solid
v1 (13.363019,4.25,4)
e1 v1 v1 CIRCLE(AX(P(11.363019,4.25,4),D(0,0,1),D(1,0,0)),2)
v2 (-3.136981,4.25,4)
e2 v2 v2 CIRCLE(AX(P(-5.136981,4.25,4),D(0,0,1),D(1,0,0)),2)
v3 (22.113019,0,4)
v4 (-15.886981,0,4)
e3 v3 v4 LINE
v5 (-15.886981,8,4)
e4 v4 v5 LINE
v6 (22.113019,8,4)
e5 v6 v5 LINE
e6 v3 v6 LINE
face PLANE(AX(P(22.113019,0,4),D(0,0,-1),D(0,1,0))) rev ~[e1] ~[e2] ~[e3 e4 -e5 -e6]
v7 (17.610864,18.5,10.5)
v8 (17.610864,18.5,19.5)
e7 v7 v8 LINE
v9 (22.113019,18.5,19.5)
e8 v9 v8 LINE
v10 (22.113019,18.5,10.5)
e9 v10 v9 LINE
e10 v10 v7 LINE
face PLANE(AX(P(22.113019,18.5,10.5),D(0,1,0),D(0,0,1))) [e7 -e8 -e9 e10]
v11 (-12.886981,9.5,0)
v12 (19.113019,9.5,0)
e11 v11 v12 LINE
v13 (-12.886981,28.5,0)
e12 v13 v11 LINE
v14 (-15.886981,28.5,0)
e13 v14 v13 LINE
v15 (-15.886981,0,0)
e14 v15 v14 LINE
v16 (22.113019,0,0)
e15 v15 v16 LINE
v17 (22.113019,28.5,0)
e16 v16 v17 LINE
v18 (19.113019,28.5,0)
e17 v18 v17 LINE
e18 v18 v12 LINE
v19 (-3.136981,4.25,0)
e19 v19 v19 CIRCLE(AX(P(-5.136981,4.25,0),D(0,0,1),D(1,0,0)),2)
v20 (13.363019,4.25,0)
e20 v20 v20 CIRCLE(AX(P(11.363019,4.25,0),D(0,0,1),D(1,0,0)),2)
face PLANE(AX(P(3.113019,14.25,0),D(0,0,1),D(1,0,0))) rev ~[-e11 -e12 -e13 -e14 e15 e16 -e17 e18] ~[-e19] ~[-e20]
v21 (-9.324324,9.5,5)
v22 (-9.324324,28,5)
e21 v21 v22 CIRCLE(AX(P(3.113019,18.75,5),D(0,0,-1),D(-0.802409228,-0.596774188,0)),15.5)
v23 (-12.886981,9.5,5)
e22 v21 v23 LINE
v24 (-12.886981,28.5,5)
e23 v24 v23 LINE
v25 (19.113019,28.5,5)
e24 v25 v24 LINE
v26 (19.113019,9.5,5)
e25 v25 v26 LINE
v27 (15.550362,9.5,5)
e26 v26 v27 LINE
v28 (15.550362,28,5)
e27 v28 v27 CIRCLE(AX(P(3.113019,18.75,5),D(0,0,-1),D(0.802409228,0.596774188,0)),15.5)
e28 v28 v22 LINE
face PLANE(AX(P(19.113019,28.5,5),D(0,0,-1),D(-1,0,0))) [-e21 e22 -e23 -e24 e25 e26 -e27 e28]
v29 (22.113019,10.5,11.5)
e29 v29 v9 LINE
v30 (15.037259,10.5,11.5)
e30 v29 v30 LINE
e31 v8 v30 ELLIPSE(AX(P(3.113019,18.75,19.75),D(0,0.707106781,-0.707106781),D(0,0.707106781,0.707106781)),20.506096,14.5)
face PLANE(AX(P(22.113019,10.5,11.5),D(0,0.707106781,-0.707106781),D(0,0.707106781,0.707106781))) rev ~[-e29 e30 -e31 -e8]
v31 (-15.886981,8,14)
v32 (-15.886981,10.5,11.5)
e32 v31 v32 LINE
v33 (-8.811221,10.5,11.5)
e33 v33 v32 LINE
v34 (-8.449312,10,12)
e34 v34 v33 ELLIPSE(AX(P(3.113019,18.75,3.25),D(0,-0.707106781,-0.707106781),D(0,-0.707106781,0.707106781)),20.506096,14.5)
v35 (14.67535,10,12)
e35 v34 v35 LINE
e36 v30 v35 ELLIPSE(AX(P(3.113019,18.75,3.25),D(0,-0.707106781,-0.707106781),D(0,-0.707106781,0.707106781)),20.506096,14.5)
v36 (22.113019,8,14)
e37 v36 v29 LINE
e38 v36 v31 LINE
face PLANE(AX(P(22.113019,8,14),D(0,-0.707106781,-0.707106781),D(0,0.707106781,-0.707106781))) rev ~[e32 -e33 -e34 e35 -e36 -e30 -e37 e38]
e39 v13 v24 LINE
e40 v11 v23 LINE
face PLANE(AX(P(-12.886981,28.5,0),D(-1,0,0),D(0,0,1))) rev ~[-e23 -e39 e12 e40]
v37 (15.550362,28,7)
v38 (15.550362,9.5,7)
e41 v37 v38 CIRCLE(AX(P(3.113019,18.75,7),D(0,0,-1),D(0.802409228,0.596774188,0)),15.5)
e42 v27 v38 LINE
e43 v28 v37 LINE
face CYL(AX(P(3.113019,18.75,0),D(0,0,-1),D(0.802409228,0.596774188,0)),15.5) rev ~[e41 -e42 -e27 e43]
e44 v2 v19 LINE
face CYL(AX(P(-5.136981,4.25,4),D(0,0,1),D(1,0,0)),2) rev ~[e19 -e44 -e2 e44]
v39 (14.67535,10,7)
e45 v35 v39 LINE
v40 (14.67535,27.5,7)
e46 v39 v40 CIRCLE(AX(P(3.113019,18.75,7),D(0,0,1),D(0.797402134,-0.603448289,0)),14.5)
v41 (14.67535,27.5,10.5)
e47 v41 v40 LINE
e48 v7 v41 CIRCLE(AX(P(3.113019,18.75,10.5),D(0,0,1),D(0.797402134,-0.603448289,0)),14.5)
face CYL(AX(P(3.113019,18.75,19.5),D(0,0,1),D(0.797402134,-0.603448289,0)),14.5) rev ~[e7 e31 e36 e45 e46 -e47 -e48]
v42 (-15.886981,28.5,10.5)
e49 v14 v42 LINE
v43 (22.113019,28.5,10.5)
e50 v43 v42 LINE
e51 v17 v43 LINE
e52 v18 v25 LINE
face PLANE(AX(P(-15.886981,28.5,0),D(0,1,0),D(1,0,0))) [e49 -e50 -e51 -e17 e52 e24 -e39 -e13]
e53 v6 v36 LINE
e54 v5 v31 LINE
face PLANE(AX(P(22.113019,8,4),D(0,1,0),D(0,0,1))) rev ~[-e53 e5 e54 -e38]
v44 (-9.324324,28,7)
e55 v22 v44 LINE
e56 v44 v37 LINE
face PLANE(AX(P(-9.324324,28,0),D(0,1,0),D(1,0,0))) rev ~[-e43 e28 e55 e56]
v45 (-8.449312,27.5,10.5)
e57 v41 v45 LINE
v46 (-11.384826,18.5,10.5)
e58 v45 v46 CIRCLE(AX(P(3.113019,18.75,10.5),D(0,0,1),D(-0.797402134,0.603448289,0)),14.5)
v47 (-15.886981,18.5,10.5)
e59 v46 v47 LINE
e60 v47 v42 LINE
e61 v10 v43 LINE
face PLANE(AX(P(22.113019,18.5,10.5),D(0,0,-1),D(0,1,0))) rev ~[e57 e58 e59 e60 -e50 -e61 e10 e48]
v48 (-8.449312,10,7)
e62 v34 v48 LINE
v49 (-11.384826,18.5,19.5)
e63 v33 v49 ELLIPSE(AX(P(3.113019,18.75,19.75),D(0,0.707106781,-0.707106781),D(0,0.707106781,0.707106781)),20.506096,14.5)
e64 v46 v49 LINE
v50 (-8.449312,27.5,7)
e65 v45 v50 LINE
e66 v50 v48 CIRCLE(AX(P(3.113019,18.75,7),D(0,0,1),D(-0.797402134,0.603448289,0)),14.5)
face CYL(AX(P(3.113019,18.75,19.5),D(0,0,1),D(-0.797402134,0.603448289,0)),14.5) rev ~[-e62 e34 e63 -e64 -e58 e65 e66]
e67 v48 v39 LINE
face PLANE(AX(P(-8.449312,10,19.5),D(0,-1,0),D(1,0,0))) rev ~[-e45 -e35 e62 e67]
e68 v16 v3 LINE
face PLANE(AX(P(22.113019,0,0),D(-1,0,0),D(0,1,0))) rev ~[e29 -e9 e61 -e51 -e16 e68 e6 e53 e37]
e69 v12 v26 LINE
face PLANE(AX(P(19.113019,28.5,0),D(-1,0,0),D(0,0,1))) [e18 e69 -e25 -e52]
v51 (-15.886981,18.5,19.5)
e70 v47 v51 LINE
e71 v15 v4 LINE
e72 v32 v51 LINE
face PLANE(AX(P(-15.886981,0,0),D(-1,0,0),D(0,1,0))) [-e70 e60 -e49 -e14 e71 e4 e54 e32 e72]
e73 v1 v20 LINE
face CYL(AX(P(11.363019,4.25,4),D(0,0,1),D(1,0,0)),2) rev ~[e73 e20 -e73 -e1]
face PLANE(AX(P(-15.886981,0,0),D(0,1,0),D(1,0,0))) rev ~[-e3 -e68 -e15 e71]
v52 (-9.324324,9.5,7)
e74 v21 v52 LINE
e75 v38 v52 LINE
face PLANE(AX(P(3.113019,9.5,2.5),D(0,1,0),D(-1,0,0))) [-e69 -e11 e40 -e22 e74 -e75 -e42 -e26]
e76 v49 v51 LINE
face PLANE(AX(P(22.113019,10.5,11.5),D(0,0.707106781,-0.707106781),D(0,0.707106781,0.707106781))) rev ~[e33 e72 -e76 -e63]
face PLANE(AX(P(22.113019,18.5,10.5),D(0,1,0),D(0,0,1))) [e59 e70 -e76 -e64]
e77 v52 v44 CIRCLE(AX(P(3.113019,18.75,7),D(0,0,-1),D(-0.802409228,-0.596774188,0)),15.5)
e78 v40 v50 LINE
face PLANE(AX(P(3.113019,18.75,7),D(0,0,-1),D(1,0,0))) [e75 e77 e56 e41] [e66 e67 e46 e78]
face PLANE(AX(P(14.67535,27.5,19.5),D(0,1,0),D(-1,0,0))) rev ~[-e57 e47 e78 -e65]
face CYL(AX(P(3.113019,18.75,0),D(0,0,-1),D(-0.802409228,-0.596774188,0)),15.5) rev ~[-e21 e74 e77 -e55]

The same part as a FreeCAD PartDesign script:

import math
import FreeCAD as App
import Part
import Sketcher
from FreeCAD import Vector
Q = App.Units.Quantity


def add_polygon(sketch, points):
    """Adds a closed chain of lines whose ends are joined by coincident constraints."""
    first, n = sketch.GeometryCount, len(points)
    for a, b in zip(points, points[1:] + points[:1]):
        sketch.addGeometry(Part.LineSegment(App.Vector(*a, 0), App.Vector(*b, 0)), False)
    for i in range(n):
        sketch.addConstraint(Sketcher.Constraint("Coincident", first + i, 2, first + (i + 1) % n, 1))

doc = App.newDocument("Part")
params = doc.addObject("Spreadsheet::Sheet", "Params")
for row, (alias, value) in enumerate([
    ("sketch1_width", "38 mm"),
    ("sketch1_height", "28.5 mm"),
    ("pad1_length", "19.5 mm"),
    ("sketch2_width", "8 mm"),
    ("sketch2_height", "15.5 mm"),
    ("pocket1_length", "38 mm"),
    ("sketch3_radius", "14.5 mm"),
    ("pocket2_length", "19.5 mm"),
    ("sketch4_width", "10 mm"),
    ("sketch4_height", "9 mm"),
    ("pocket3_length", "38 mm"),
    ("sketch5_width", "10.5 mm"),
    ("sketch5_height", "5.5 mm"),
    ("pocket4_length", "38 mm"),
    ("sketch6_radius", "15.5 mm"),
    ("pocket5_length", "7 mm"),
    ("sketch7_width", "32 mm"),
    ("sketch7_height", "5 mm"),
    ("pocket6_length", "19 mm"),
    ("sketch8_diameter", "4 mm"),
    ("pocket7_length", "4 mm"),
], start=1):
    params.set(f"A{row}", alias)
    params.set(f"B{row}", "=" + value)
    params.setAlias(f"B{row}", alias)

body = doc.addObject("PartDesign::Body", "Body")

sketch1 = doc.addObject("Sketcher::SketchObject", "Sketch")
body.addObject(sketch1)
sketch1.AttachmentSupport = (doc.XY_Plane, [""])
sketch1.MapMode = "FlatFace"
add_polygon(sketch1, [(-15.886981, 28.5), (-15.886981, 0), (22.113019, 0), (22.113019, 28.5)])
sketch1.addConstraint(Sketcher.Constraint("Vertical", 0))
sketch1.addConstraint(Sketcher.Constraint("Horizontal", 1))
sketch1.addConstraint(Sketcher.Constraint("Vertical", 2))
sketch1.addConstraint(Sketcher.Constraint("Horizontal", 3))
sketch1.addConstraint(Sketcher.Constraint("PointOnObject", 0, 2, -1))
sketch1.addConstraint(Sketcher.Constraint("DistanceX", 1, 1, 1, 2, Q("38 mm")))
sketch1.addConstraint(Sketcher.Constraint("DistanceY", 0, 2, 0, 1, Q("28.5 mm")))
sketch1.addConstraint(Sketcher.Constraint("DistanceX", 0, 2, -1, 1, Q("15.886981 mm")))
sketch1.setExpression("Constraints[9]", "Params.sketch1_width")
sketch1.setExpression("Constraints[10]", "Params.sketch1_height")
pad1 = doc.addObject("PartDesign::Pad", "Pad")
body.addObject(pad1)
pad1.Profile = sketch1
pad1.setExpression("Length", "Params.pad1_length")

sketch2 = doc.addObject("Sketcher::SketchObject", "Sketch001")
body.addObject(sketch2)
sketch2.AttachmentSupport = (doc.YZ_Plane, [""])
sketch2.MapMode = "FlatFace"
sketch2.AttachmentOffset = App.Placement(Vector(0, 0, 22.113019), App.Rotation())
add_polygon(sketch2, [(0, 19.5), (0, 4), (8, 4), (8, 19.5)])
sketch2.addConstraint(Sketcher.Constraint("Vertical", 0))
sketch2.addConstraint(Sketcher.Constraint("Horizontal", 1))
sketch2.addConstraint(Sketcher.Constraint("Vertical", 2))
sketch2.addConstraint(Sketcher.Constraint("Horizontal", 3))
sketch2.addConstraint(Sketcher.Constraint("PointOnObject", 0, 2, -2))
sketch2.addConstraint(Sketcher.Constraint("DistanceX", 1, 1, 1, 2, Q("8 mm")))
sketch2.addConstraint(Sketcher.Constraint("DistanceY", 0, 2, 0, 1, Q("15.5 mm")))
sketch2.addConstraint(Sketcher.Constraint("DistanceY", -1, 1, 0, 2, Q("4 mm")))
sketch2.setExpression("Constraints[9]", "Params.sketch2_width")
sketch2.setExpression("Constraints[10]", "Params.sketch2_height")
pocket1 = doc.addObject("PartDesign::Pocket", "Pocket")
body.addObject(pocket1)
pocket1.Profile = sketch2
pocket1.setExpression("Length", "Params.pocket1_length")

sketch3 = doc.addObject("Sketcher::SketchObject", "Sketch002")
body.addObject(sketch3)
sketch3.AttachmentSupport = (doc.XY_Plane, [""])
sketch3.MapMode = "FlatFace"
sketch3.AttachmentOffset = App.Placement(Vector(0, 0, 19.5), App.Rotation())
sketch3.addGeometry(Part.ArcOfCircle(Part.Circle(Vector(3.113019, 18.75, 0), Vector(0, 0, 1), 14.5), math.radians(142.882736), math.radians(217.117264)), False)
sketch3.addGeometry(Part.LineSegment(Vector(-8.449312, 10, 0), Vector(14.67535, 10, 0)), False)
sketch3.addGeometry(Part.ArcOfCircle(Part.Circle(Vector(3.113019, 18.75, 0), Vector(0, 0, 1), 14.5), math.radians(-37.117264), math.radians(37.117264)), False)
sketch3.addGeometry(Part.LineSegment(Vector(14.67535, 27.5, 0), Vector(-8.449312, 27.5, 0)), False)
sketch3.addConstraint(Sketcher.Constraint("Coincident", 0, 2, 1, 1))
sketch3.addConstraint(Sketcher.Constraint("Coincident", 1, 2, 2, 1))
sketch3.addConstraint(Sketcher.Constraint("Coincident", 2, 2, 3, 1))
sketch3.addConstraint(Sketcher.Constraint("Coincident", 3, 2, 0, 1))
sketch3.addConstraint(Sketcher.Constraint("Horizontal", 1))
sketch3.addConstraint(Sketcher.Constraint("Horizontal", 3))
sketch3.addConstraint(Sketcher.Constraint("Coincident", 2, 3, 0, 3))
sketch3.addConstraint(Sketcher.Constraint("Equal", 0, 2))
sketch3.addConstraint(Sketcher.Constraint("Vertical", 1, 2, 2, 2))
sketch3.addConstraint(Sketcher.Constraint("Radius", 0, Q("14.5 mm")))
sketch3.addConstraint(Sketcher.Constraint("DistanceY", -1, 1, 0, 2, Q("10 mm")))
sketch3.addConstraint(Sketcher.Constraint("DistanceY", -1, 1, 2, 2, Q("27.5 mm")))
sketch3.addConstraint(Sketcher.Constraint("DistanceX", -1, 1, 0, 3, Q("3.113019 mm")))
sketch3.setExpression("Constraints[9]", "Params.sketch3_radius")
pocket2 = doc.addObject("PartDesign::Pocket", "Pocket001")
body.addObject(pocket2)
pocket2.Profile = sketch3
pocket2.setExpression("Length", "Params.pocket2_length")

sketch4 = doc.addObject("Sketcher::SketchObject", "Sketch003")
body.addObject(sketch4)
sketch4.AttachmentSupport = (doc.YZ_Plane, [""])
sketch4.MapMode = "FlatFace"
sketch4.AttachmentOffset = App.Placement(Vector(0, 0, 22.113019), App.Rotation())
add_polygon(sketch4, [(18.5, 19.5), (18.5, 10.5), (28.5, 10.5), (28.5, 19.5)])
sketch4.addConstraint(Sketcher.Constraint("Vertical", 0))
sketch4.addConstraint(Sketcher.Constraint("Horizontal", 1))
sketch4.addConstraint(Sketcher.Constraint("Vertical", 2))
sketch4.addConstraint(Sketcher.Constraint("Horizontal", 3))
sketch4.addConstraint(Sketcher.Constraint("DistanceX", 1, 1, 1, 2, Q("10 mm")))
sketch4.addConstraint(Sketcher.Constraint("DistanceY", 0, 2, 0, 1, Q("9 mm")))
sketch4.addConstraint(Sketcher.Constraint("DistanceX", -1, 1, 0, 2, Q("18.5 mm")))
sketch4.addConstraint(Sketcher.Constraint("DistanceY", -1, 1, 0, 2, Q("10.5 mm")))
sketch4.setExpression("Constraints[8]", "Params.sketch4_width")
sketch4.setExpression("Constraints[9]", "Params.sketch4_height")
pocket3 = doc.addObject("PartDesign::Pocket", "Pocket002")
body.addObject(pocket3)
pocket3.Profile = sketch4
pocket3.setExpression("Length", "Params.pocket3_length")

sketch5 = doc.addObject("Sketcher::SketchObject", "Sketch004")
body.addObject(sketch5)
sketch5.AttachmentSupport = (doc.YZ_Plane, [""])
sketch5.MapMode = "FlatFace"
sketch5.AttachmentOffset = App.Placement(Vector(0, 0, 22.113019), App.Rotation())
add_polygon(sketch5, [(18.5, 19.5), (8, 19.5), (8, 14), (10.5, 11.5)])
sketch5.addConstraint(Sketcher.Constraint("Horizontal", 0))
sketch5.addConstraint(Sketcher.Constraint("Vertical", 1))
sketch5.addConstraint(Sketcher.Constraint("Perpendicular", 2, 3))
sketch5.addConstraint(Sketcher.Constraint("Angle", 2, Q("-45 deg")))
sketch5.addConstraint(Sketcher.Constraint("DistanceX", 0, 2, 0, 1, Q("10.5 mm")))
sketch5.addConstraint(Sketcher.Constraint("DistanceY", 1, 2, 1, 1, Q("5.5 mm")))
sketch5.addConstraint(Sketcher.Constraint("DistanceX", -1, 1, 0, 2, Q("8 mm")))
sketch5.addConstraint(Sketcher.Constraint("DistanceY", -1, 1, 1, 2, Q("14 mm")))
sketch5.setExpression("Constraints[8]", "Params.sketch5_width")
sketch5.setExpression("Constraints[9]", "Params.sketch5_height")
pocket4 = doc.addObject("PartDesign::Pocket", "Pocket003")
body.addObject(pocket4)
pocket4.Profile = sketch5
pocket4.setExpression("Length", "Params.pocket4_length")

sketch6 = doc.addObject("Sketcher::SketchObject", "Sketch005")
body.addObject(sketch6)
sketch6.AttachmentSupport = (doc.XY_Plane, [""])
sketch6.MapMode = "FlatFace"
sketch6.addGeometry(Part.LineSegment(Vector(15.550362, 9.5, 0), Vector(-9.324324, 9.5, 0)), False)
sketch6.addGeometry(Part.ArcOfCircle(Part.Circle(Vector(3.113019, 18.75, 0), Vector(0, 0, 1), 15.5), math.radians(143.360786), math.radians(216.639214)), False)
sketch6.addGeometry(Part.LineSegment(Vector(-9.324324, 28, 0), Vector(15.550362, 28, 0)), False)
sketch6.addGeometry(Part.ArcOfCircle(Part.Circle(Vector(3.113019, 18.75, 0), Vector(0, 0, 1), 15.5), math.radians(-36.639214), math.radians(36.639214)), False)
sketch6.addConstraint(Sketcher.Constraint("Coincident", 0, 2, 1, 2))
sketch6.addConstraint(Sketcher.Constraint("Coincident", 1, 1, 2, 1))
sketch6.addConstraint(Sketcher.Constraint("Coincident", 2, 2, 3, 2))
sketch6.addConstraint(Sketcher.Constraint("Coincident", 3, 1, 0, 1))
sketch6.addConstraint(Sketcher.Constraint("Horizontal", 0))
sketch6.addConstraint(Sketcher.Constraint("Horizontal", 2))
sketch6.addConstraint(Sketcher.Constraint("Coincident", 3, 3, 1, 3))
sketch6.addConstraint(Sketcher.Constraint("Equal", 1, 3))
sketch6.addConstraint(Sketcher.Constraint("Vertical", 0, 2, 1, 1))
sketch6.addConstraint(Sketcher.Constraint("Radius", 1, Q("15.5 mm")))
sketch6.addConstraint(Sketcher.Constraint("DistanceY", -1, 1, 1, 1, Q("28 mm")))
sketch6.addConstraint(Sketcher.Constraint("DistanceY", -1, 1, 0, 2, Q("9.5 mm")))
sketch6.addConstraint(Sketcher.Constraint("DistanceX", -1, 1, 1, 3, Q("3.113019 mm")))
sketch6.setExpression("Constraints[9]", "Params.sketch6_radius")
pocket5 = doc.addObject("PartDesign::Pocket", "Pocket004")
body.addObject(pocket5)
pocket5.Profile = sketch6
pocket5.setExpression("Length", "Params.pocket5_length")
pocket5.Reversed = True

sketch7 = doc.addObject("Sketcher::SketchObject", "Sketch006")
body.addObject(sketch7)
sketch7.AttachmentSupport = (doc.XZ_Plane, [""])
sketch7.MapMode = "FlatFace"
sketch7.AttachmentOffset = App.Placement(Vector(0, 0, -28.5), App.Rotation())
add_polygon(sketch7, [(19.113019, 5), (19.113019, 0), (-12.886981, 0), (-12.886981, 5)])
sketch7.addConstraint(Sketcher.Constraint("Vertical", 0))
sketch7.addConstraint(Sketcher.Constraint("Horizontal", 1))
sketch7.addConstraint(Sketcher.Constraint("Vertical", 2))
sketch7.addConstraint(Sketcher.Constraint("Horizontal", 3))
sketch7.addConstraint(Sketcher.Constraint("PointOnObject", 0, 2, -1))
sketch7.addConstraint(Sketcher.Constraint("DistanceX", 1, 2, 1, 1, Q("32 mm")))
sketch7.addConstraint(Sketcher.Constraint("DistanceY", 0, 2, 0, 1, Q("5 mm")))
sketch7.addConstraint(Sketcher.Constraint("DistanceX", -1, 1, 0, 2, Q("19.113019 mm")))
sketch7.setExpression("Constraints[9]", "Params.sketch7_width")
sketch7.setExpression("Constraints[10]", "Params.sketch7_height")
pocket6 = doc.addObject("PartDesign::Pocket", "Pocket005")
body.addObject(pocket6)
pocket6.Profile = sketch7
pocket6.setExpression("Length", "Params.pocket6_length")
pocket6.Reversed = True

sketch8 = doc.addObject("Sketcher::SketchObject", "Sketch007")
body.addObject(sketch8)
sketch8.AttachmentSupport = (doc.XY_Plane, [""])
sketch8.MapMode = "FlatFace"
sketch8.AttachmentOffset = App.Placement(Vector(0, 0, 4), App.Rotation())
sketch8.addGeometry(Part.Circle(Vector(-5.136981, 4.25, 0), Vector(0, 0, 1), 2), False)
sketch8.addGeometry(Part.Circle(Vector(11.363019, 4.25, 0), Vector(0, 0, 1), 2), False)
sketch8.addConstraint(Sketcher.Constraint("Equal", 0, 1))
sketch8.addConstraint(Sketcher.Constraint("Horizontal", 0, 3, 1, 3))
sketch8.addConstraint(Sketcher.Constraint("Diameter", 0, Q("4 mm")))
sketch8.addConstraint(Sketcher.Constraint("DistanceX", 0, 3, 1, 3, Q("16.5 mm")))
sketch8.addConstraint(Sketcher.Constraint("DistanceY", -1, 1, 0, 3, Q("4.25 mm")))
sketch8.addConstraint(Sketcher.Constraint("DistanceX", 0, 3, -1, 1, Q("5.136981 mm")))
sketch8.setExpression("Constraints[2]", "Params.sketch8_diameter")
pocket7 = doc.addObject("PartDesign::Pocket", "Pocket006")
body.addObject(pocket7)
pocket7.Profile = sketch8
pocket7.setExpression("Length", "Params.pocket7_length")

doc.recompute()
